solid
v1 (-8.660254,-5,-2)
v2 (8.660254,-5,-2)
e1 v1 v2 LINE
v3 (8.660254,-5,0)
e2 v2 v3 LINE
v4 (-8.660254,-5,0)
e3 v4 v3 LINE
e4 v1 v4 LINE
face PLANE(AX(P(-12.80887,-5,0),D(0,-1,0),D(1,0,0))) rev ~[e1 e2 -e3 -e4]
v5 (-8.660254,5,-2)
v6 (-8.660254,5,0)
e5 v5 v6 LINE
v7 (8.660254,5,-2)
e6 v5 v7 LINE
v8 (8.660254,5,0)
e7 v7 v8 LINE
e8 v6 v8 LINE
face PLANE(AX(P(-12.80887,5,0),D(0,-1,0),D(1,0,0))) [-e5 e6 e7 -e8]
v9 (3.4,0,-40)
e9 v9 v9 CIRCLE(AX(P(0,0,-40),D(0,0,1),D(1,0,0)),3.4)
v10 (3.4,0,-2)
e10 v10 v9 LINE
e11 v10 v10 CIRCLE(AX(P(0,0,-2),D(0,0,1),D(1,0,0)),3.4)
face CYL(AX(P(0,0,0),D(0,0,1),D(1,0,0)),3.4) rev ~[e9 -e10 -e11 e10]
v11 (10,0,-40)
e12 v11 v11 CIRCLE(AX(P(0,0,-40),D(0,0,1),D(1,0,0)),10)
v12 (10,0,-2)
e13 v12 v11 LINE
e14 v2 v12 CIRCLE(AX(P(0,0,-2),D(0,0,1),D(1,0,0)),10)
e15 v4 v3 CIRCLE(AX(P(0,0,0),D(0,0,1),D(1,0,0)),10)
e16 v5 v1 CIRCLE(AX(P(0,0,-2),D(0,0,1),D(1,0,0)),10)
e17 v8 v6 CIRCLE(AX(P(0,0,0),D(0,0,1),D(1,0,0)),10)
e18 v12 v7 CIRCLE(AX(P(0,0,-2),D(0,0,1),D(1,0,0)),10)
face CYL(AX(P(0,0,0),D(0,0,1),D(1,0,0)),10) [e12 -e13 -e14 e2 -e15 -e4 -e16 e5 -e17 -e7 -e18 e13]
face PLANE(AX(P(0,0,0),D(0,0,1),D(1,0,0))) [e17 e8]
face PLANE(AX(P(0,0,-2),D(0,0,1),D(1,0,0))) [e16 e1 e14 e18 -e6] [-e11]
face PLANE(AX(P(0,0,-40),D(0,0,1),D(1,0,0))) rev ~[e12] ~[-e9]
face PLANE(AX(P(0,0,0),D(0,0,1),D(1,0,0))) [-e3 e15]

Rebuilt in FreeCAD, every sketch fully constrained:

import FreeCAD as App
import Part
import Sketcher
from FreeCAD import Vector
Q = App.Units.Quantity


def add_polygon(sketch, points):
    """Adds a closed chain of lines whose ends are joined by coincident constraints."""
    first, n = sketch.GeometryCount, len(points)
    for a, b in zip(points, points[1:] + points[:1]):
        sketch.addGeometry(Part.LineSegment(App.Vector(*a, 0), App.Vector(*b, 0)), False)
    for i in range(n):
        sketch.addConstraint(Sketcher.Constraint("Coincident", first + i, 2, first + (i + 1) % n, 1))

doc = App.newDocument("Part")
body = doc.addObject("PartDesign::Body", "Body")

# Sketch on XY plane
sketch1 = body.newObject("Sketcher::SketchObject", "Sketch")
sketch1.AttachmentSupport = (doc.getObject("XY_Plane"), [""])
sketch1.MapMode = "FlatFace"
sketch1.addGeometry(Part.Circle(Vector(0, 0, 0), Vector(0, 0, 1), 10), False)
sketch1.addConstraint(Sketcher.Constraint("Coincident", 0, 3, -1, 1))
sketch1.addConstraint(Sketcher.Constraint("Diameter", 0, Q("20 mm")))
pad1 = body.newObject("PartDesign::Pad", "Pad")
pad1.Profile = sketch1
pad1.Length = 40
pad1.Reversed = True

# Sketch on XY plane
sketch2 = body.newObject("Sketcher::SketchObject", "Sketch001")
sketch2.AttachmentSupport = (doc.getObject("XY_Plane"), [""])
sketch2.MapMode = "FlatFace"
sketch2.addGeometry(Part.Circle(Vector(0, 0, 0), Vector(0, 0, 1), 3.4), False)
sketch2.addConstraint(Sketcher.Constraint("Coincident", 0, 3, -1, 1))
sketch2.addConstraint(Sketcher.Constraint("Diameter", 0, Q("6.8 mm")))
pocket1 = body.newObject("PartDesign::Pocket", "Pocket")
pocket1.Profile = sketch2
pocket1.Type = "ThroughAll"

# Sketch on XY plane
sketch3 = body.newObject("Sketcher::SketchObject", "Sketch002")
sketch3.AttachmentSupport = (doc.getObject("XY_Plane"), [""])
sketch3.MapMode = "FlatFace"
add_polygon(sketch3, [(-13, 5), (-13, -5), (13, -5), (13, 5)])  # lines 0-3
sketch3.addConstraint(Sketcher.Constraint("Vertical", 0))
sketch3.addConstraint(Sketcher.Constraint("Horizontal", 1))
sketch3.addConstraint(Sketcher.Constraint("Vertical", 2))
sketch3.addConstraint(Sketcher.Constraint("Horizontal", 3))
sketch3.addConstraint(Sketcher.Constraint("Symmetric", 0, 2, 2, 2, -1, 1))
sketch3.addConstraint(Sketcher.Constraint("DistanceY", 0, 2, 0, 1, Q("10 mm")))
sketch3.addConstraint(Sketcher.Constraint("DistanceX", 1, 1, 1, 2, Q("25.61774 mm")))
pocket2 = body.newObject("PartDesign::Pocket", "Pocket001")
pocket2.Profile = sketch3
pocket2.Length = 2

doc.recompute()
